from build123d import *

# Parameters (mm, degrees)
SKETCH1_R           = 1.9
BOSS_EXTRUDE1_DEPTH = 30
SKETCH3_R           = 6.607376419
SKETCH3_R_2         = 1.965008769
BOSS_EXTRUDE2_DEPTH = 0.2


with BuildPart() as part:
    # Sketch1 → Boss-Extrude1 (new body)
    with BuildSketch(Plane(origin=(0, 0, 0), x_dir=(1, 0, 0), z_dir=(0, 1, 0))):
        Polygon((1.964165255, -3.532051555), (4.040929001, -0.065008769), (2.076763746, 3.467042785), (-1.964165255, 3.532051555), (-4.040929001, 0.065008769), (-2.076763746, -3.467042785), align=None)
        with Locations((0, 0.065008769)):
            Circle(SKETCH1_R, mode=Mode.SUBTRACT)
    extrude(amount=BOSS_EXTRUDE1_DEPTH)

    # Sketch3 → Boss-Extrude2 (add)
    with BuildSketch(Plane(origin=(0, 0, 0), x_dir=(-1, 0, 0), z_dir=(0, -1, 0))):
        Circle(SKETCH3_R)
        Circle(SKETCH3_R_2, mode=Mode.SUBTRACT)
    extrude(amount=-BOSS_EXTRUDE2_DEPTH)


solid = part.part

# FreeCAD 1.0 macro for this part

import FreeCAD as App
import Part
import Sketcher


def add_polygon(sketch, points):
    """Adds a closed chain of lines whose ends are joined by coincident constraints."""
    first, n = sketch.GeometryCount, len(points)
    for a, b in zip(points, points[1:] + points[:1]):
        sketch.addGeometry(Part.LineSegment(App.Vector(*a, 0), App.Vector(*b, 0)), False)
    for i in range(n):
        sketch.addConstraint(Sketcher.Constraint("Coincident", first + i, 2, first + (i + 1) % n, 1))

doc = App.newDocument("Part")
body = doc.addObject("PartDesign::Body", "Body")

# Sketch on XZ plane
sketch1 = body.newObject("Sketcher::SketchObject", "Sketch")
sketch1.AttachmentSupport = (doc.getObject("XZ_Plane"), [""])
sketch1.MapMode = "FlatFace"
add_polygon(sketch1, [(1.964165, 3.532052), (4.040929, 0.065009), (2.076764, -3.467043), (-1.964165, -3.532052), (-4.040929, -0.065009), (-2.076764, 3.467043)])  # lines 0-5
sketch1.addGeometry(Part.Circle(App.Vector(0, -0.065009, 0), App.Vector(0, 0, 1), 1.9), False)  # 6
sketch1.addConstraint([
    Sketcher.Constraint("Symmetric", 0, 2, 3, 2, -1, 1),
    Sketcher.Constraint("Symmetric", 1, 2, 4, 2, -1, 1),
    Sketcher.Constraint("Symmetric", 2, 2, 5, 2, -1, 1),
    Sketcher.Constraint("PointOnObject", 6, 3, -2),
    Sketcher.Constraint("Horizontal", 6, 3, 3, 2),
    Sketcher.Constraint("Equal", 0, 1),
    Sketcher.Constraint("Equal", 1, 2),
    Sketcher.Constraint("Diameter", 6, 3.8),
    Sketcher.Constraint("DistanceX", 4, 2, 2, 2, 0.112598),
    Sketcher.Constraint("Distance", 0, 4.041452),
    Sketcher.Constraint("DistanceY", 6, 3, -1, 1, 0.065009),
    Sketcher.Constraint("DistanceX", -1, 1, 0, 2, 4.040929),
])
pad1 = body.newObject("PartDesign::Pad", "Pad")
pad1.Profile = sketch1
pad1.Length = 30
pad1.Reversed = True

# Sketch on XZ plane
sketch2 = body.newObject("Sketcher::SketchObject", "Sketch001")
sketch2.AttachmentSupport = (doc.getObject("XZ_Plane"), [""])
sketch2.MapMode = "FlatFace"
sketch2.addGeometry([
    Part.Circle(App.Vector(0, 0, 0), App.Vector(0, 0, 1), 6.607376),
    Part.Circle(App.Vector(0, 0, 0), App.Vector(0, 0, 1), 1.965009),
], False)
sketch2.addConstraint([
    Sketcher.Constraint("Coincident", 0, 3, -1, 1),
    Sketcher.Constraint("Coincident", 1, 3, -1, 1),
    Sketcher.Constraint("Diameter", 0, 13.214753),
    Sketcher.Constraint("Diameter", 1, 3.930018),
])
pad2 = body.newObject("PartDesign::Pad", "Pad001")
pad2.Profile = sketch2
pad2.Length = 0.2
pad2.Reversed = True

doc.recompute()
